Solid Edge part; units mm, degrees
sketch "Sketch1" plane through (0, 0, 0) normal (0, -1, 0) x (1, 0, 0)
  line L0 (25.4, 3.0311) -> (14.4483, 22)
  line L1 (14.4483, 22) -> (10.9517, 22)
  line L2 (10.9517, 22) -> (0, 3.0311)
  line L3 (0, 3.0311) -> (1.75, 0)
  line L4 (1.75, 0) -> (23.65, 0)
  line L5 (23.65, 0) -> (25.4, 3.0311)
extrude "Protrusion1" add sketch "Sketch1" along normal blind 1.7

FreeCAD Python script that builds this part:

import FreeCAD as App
import Part
import Sketcher
Q = App.Units.Quantity

doc = App.newDocument("Part")
body = doc.addObject("PartDesign::Body", "Body")

# Sketch on XZ plane
sketch1 = body.newObject("Sketcher::SketchObject", "Sketch")
sketch1.AttachmentSupport = (doc.getObject("XZ_Plane"), [""])
sketch1.MapMode = "FlatFace"
sketch1.addGeometry([
    Part.LineSegment(App.Vector(23.6, 0, 0), App.Vector(25.4, 3, 0)),  # 0
    Part.LineSegment(App.Vector(25.4, 3, 0), App.Vector(14.4, 22, 0)),  # 1
    Part.LineSegment(App.Vector(14.4, 22, 0), App.Vector(11, 22, 0)),  # 2
    Part.LineSegment(App.Vector(11, 22, 0), App.Vector(0, 3, 0)),  # 3
    Part.LineSegment(App.Vector(0, 3, 0), App.Vector(1.8, 0, 0)),  # 4
    Part.LineSegment(App.Vector(1.8, 0, 0), App.Vector(23.6, 0, 0)),  # 5
], False)
sketch1.addConstraint([
    Sketcher.Constraint("Coincident", 0, 2, 1, 1),
    Sketcher.Constraint("Coincident", 1, 2, 2, 1),
    Sketcher.Constraint("Coincident", 2, 2, 3, 1),
    Sketcher.Constraint("Coincident", 3, 2, 4, 1),
    Sketcher.Constraint("Coincident", 4, 2, 5, 1),
    Sketcher.Constraint("Coincident", 5, 2, 0, 1),
    Sketcher.Constraint("Horizontal", 2),
    Sketcher.Constraint("Horizontal", 5),
    Sketcher.Constraint("PointOnObject", 3, 2, -2),
    Sketcher.Constraint("PointOnObject", 4, 2, -1),
    Sketcher.Constraint("Parallel", 0, 3),
    Sketcher.Constraint("Parallel", 1, 4),
    Sketcher.Constraint("Horizontal", 0, 2, 3, 2),
    Sketcher.Constraint("Equal", 1, 3),
    Sketcher.Constraint("Angle", 0, Q("60 deg")),
    Sketcher.Constraint("DistanceX", 5, 1, 5, 2, 21.9),
    Sketcher.Constraint("DistanceY", -1, 1, 1, 2, 22.0),
    Sketcher.Constraint("Distance", 0, 3.5),
])
pad1 = body.newObject("PartDesign::Pad", "Pad")
pad1.Profile = sketch1
pad1.Length = 1.7

doc.recompute()
